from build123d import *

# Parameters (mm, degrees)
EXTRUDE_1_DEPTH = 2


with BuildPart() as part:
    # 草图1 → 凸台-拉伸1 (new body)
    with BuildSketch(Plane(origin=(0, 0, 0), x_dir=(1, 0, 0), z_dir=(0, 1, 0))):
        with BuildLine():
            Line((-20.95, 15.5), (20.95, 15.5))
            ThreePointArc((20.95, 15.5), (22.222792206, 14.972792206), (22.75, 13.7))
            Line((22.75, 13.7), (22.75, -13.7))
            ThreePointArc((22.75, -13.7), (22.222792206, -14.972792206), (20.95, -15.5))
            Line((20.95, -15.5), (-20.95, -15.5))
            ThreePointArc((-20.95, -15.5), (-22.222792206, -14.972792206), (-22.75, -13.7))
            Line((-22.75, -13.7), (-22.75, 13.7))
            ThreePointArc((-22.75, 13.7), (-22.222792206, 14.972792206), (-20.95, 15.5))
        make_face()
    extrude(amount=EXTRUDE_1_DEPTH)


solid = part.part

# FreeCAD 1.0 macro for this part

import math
import FreeCAD as App
import Part
import Sketcher

doc = App.newDocument("Part")
body = doc.addObject("PartDesign::Body", "Body")

sketch1 = doc.addObject("Sketcher::SketchObject", "Sketch")
body.addObject(sketch1)
sketch1.AttachmentSupport = (doc.XZ_Plane, [""])
sketch1.MapMode = "FlatFace"
sketch1.addGeometry(Part.LineSegment(App.Vector(20.9, -15.5, 0), App.Vector(-20.9, -15.5, 0)), False)
sketch1.addGeometry(Part.ArcOfCircle(Part.Circle(App.Vector(-20.9, -13.7, 0), App.Vector(0, 0, 1), 1.8), math.radians(180), math.radians(270)), False)
sketch1.addGeometry(Part.LineSegment(App.Vector(-22.8, -13.7, 0), App.Vector(-22.8, 13.7, 0)), False)
sketch1.addGeometry(Part.ArcOfCircle(Part.Circle(App.Vector(-20.9, 13.7, 0), App.Vector(0, 0, 1), 1.8), math.radians(90), math.radians(180)), False)
sketch1.addGeometry(Part.LineSegment(App.Vector(-20.9, 15.5, 0), App.Vector(20.9, 15.5, 0)), False)
sketch1.addGeometry(Part.ArcOfCircle(Part.Circle(App.Vector(20.9, 13.7, 0), App.Vector(0, 0, 1), 1.8), math.radians(0), math.radians(90)), False)
sketch1.addGeometry(Part.LineSegment(App.Vector(22.8, 13.7, 0), App.Vector(22.8, -13.7, 0)), False)
sketch1.addGeometry(Part.ArcOfCircle(Part.Circle(App.Vector(20.9, -13.7, 0), App.Vector(0, 0, 1), 1.8), math.radians(-90), math.radians(0)), False)
sketch1.addConstraint(Sketcher.Constraint("Tangent", 0, 2, 1, 2))
sketch1.addConstraint(Sketcher.Constraint("Tangent", 1, 1, 2, 1))
sketch1.addConstraint(Sketcher.Constraint("Tangent", 2, 2, 3, 2))
sketch1.addConstraint(Sketcher.Constraint("Tangent", 3, 1, 4, 1))
sketch1.addConstraint(Sketcher.Constraint("Tangent", 4, 2, 5, 2))
sketch1.addConstraint(Sketcher.Constraint("Tangent", 5, 1, 6, 1))
sketch1.addConstraint(Sketcher.Constraint("Tangent", 6, 2, 7, 2))
sketch1.addConstraint(Sketcher.Constraint("Tangent", 7, 1, 0, 1))
sketch1.addConstraint(Sketcher.Constraint("Horizontal", 0))
sketch1.addConstraint(Sketcher.Constraint("Vertical", 2))
sketch1.addConstraint(Sketcher.Constraint("Horizontal", 4))
sketch1.addConstraint(Sketcher.Constraint("Vertical", 6))
sketch1.addConstraint(Sketcher.Constraint("Equal", 1, 3))
sketch1.addConstraint(Sketcher.Constraint("Equal", 3, 5))
sketch1.addConstraint(Sketcher.Constraint("Equal", 5, 7))
sketch1.addConstraint(Sketcher.Constraint("Symmetric", 1, 3, 5, 3, -1, 1))
sketch1.addConstraint(Sketcher.Constraint("Radius", 1, 1.8))
sketch1.addConstraint(Sketcher.Constraint("DistanceX", 0, 2, 0, 1, 41.9))
sketch1.addConstraint(Sketcher.Constraint("DistanceY", 2, 1, 2, 2, 27.4))
pad1 = doc.addObject("PartDesign::Pad", "Pad")
body.addObject(pad1)
pad1.Profile = sketch1
pad1.Length = 2
pad1.Reversed = True

doc.recompute()
